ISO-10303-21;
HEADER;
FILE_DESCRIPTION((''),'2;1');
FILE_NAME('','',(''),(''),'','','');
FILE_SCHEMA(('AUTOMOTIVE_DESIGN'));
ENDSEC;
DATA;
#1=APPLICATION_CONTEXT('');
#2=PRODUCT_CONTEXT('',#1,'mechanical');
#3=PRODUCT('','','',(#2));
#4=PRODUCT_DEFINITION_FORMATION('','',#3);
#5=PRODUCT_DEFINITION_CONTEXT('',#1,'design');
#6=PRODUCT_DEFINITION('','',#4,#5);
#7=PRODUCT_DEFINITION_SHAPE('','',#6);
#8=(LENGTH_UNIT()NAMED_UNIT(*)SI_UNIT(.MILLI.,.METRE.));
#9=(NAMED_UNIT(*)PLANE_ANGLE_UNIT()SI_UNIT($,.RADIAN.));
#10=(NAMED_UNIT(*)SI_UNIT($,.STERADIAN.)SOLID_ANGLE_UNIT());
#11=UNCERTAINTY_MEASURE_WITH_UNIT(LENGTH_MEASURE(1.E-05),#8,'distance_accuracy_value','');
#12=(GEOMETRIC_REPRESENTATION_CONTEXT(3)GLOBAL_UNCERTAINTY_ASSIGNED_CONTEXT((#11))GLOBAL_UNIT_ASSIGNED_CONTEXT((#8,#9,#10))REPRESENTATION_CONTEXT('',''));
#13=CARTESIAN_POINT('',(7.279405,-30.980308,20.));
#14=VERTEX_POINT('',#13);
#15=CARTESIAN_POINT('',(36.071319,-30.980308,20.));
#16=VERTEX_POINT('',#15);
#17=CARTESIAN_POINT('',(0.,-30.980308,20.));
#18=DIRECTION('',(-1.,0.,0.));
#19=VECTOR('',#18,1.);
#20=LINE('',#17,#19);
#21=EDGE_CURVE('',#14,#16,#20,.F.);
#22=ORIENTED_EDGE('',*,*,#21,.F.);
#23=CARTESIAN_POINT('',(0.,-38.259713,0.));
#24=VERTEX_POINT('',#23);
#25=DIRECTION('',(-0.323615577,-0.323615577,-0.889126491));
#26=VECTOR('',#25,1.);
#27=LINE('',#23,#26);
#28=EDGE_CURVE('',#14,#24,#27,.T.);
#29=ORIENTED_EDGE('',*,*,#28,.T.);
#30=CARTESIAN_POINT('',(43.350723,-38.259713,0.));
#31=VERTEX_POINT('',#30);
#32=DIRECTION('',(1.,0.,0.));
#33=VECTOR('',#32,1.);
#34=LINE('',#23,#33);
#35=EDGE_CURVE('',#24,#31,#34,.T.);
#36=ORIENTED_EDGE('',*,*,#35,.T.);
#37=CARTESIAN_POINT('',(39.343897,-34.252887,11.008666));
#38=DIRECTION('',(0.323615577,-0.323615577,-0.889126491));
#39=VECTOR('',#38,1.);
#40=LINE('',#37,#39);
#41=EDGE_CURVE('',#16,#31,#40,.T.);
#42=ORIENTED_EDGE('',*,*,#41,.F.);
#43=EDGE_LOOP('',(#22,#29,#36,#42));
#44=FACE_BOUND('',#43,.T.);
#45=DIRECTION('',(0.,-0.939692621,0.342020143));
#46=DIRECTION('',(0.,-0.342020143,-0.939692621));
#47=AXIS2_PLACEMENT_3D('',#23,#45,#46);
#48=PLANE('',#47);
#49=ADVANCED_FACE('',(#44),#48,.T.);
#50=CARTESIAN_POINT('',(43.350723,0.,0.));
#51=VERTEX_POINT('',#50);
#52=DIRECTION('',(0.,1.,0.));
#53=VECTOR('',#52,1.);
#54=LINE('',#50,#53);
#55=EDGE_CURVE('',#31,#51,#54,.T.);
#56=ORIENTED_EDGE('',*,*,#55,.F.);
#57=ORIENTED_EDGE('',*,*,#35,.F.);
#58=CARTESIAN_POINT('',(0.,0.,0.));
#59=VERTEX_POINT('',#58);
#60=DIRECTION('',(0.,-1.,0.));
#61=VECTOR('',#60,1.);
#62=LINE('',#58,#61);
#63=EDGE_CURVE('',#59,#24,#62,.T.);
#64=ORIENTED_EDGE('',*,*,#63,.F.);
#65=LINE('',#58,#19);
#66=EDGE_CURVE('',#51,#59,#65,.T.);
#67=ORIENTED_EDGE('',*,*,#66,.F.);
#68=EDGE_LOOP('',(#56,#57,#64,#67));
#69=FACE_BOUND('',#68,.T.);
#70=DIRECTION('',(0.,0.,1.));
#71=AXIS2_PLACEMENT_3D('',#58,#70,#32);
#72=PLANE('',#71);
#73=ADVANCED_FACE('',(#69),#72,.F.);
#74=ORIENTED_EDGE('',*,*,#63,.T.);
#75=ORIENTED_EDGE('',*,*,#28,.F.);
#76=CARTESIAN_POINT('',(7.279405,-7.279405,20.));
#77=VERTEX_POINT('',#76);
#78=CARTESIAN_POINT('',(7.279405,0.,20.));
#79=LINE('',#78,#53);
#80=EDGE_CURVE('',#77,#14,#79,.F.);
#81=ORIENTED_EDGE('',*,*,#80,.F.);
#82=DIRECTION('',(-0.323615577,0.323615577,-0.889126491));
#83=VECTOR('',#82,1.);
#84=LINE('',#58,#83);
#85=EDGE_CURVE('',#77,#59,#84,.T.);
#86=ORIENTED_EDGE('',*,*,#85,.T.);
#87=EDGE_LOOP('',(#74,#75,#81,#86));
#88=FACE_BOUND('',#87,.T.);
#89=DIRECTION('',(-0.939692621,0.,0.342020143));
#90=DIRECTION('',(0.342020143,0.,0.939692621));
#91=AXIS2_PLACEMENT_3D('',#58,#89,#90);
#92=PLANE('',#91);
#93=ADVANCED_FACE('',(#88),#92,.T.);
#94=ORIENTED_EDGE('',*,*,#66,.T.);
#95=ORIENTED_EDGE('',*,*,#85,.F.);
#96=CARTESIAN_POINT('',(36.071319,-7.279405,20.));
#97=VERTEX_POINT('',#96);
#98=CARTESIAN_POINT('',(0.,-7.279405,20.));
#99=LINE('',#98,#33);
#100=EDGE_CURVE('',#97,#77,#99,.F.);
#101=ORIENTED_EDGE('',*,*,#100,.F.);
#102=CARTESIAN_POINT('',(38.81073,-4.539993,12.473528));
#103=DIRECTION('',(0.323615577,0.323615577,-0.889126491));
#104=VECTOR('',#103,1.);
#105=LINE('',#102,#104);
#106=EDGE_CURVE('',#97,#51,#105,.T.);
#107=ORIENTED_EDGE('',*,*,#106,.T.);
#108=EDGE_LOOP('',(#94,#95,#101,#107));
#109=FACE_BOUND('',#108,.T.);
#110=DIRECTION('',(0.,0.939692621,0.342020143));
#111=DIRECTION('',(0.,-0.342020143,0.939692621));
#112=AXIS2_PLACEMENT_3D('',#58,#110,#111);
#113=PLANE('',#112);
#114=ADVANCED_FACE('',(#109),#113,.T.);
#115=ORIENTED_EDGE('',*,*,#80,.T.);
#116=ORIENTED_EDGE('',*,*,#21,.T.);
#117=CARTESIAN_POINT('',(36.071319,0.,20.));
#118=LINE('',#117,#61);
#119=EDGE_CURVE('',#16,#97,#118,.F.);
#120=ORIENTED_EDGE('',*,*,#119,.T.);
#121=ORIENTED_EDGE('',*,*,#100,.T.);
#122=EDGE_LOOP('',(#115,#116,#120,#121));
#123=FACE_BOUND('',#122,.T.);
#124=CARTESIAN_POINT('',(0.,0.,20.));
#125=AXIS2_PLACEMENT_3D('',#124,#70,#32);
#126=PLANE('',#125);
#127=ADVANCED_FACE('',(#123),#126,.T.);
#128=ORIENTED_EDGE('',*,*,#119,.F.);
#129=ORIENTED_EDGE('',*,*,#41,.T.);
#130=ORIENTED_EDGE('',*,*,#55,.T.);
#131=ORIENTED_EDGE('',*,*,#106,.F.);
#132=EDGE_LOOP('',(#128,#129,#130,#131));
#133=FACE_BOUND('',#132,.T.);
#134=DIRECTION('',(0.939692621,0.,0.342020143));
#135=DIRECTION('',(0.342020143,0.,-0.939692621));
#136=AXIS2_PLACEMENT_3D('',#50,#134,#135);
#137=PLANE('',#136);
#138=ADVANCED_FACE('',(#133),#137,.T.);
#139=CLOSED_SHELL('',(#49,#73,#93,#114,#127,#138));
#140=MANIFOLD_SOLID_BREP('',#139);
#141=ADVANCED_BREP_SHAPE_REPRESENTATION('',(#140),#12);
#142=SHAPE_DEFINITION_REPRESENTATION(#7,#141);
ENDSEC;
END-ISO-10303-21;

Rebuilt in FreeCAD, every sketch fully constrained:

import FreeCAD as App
import Part
import Sketcher

V = App.Vector


def add_polygon(sketch, points):
    """Adds a closed chain of lines whose ends are joined by coincident constraints."""
    first, n = sketch.GeometryCount, len(points)
    for a, b in zip(points, points[1:] + points[:1]):
        sketch.addGeometry(Part.LineSegment(App.Vector(*a, 0), App.Vector(*b, 0)), False)
    for i in range(n):
        sketch.addConstraint(Sketcher.Constraint("Coincident", first + i, 2, first + (i + 1) % n, 1))

doc = App.newDocument("Part")
params = doc.addObject("Spreadsheet::Sheet", "Params")
for row, (alias, value) in enumerate([
    ("pad1_length", "20 mm"),
    ("pad1_taper", "-20 deg"),
], start=1):
    params.set(f"A{row}", alias)
    params.set(f"B{row}", "=" + value)
    params.setAlias(f"B{row}", alias)

body = doc.addObject("PartDesign::Body", "Body")

# Sketch on XY plane
sketch1 = body.newObject("Sketcher::SketchObject", "Sketch")
sketch1.AttachmentSupport = (doc.getObject("XY_Plane"), [""])
sketch1.MapMode = "FlatFace"
add_polygon(sketch1, [(0, 0), (0, -38), (43, -38), (43, 0)])  # lines 0-3
sketch1.addConstraint([
    Sketcher.Constraint("Vertical", 0),
    Sketcher.Constraint("Horizontal", 1),
    Sketcher.Constraint("Vertical", 2),
    Sketcher.Constraint("Horizontal", 3),
    Sketcher.Constraint("Coincident", 3, 2, -1, 1),
    Sketcher.Constraint("DistanceX", 1, 1, 1, 2, 43.350723),
    Sketcher.Constraint("DistanceY", 0, 2, 0, 1, 38.259713),
])
pad1 = body.newObject("PartDesign::Pad", "Pad")
pad1.Profile = sketch1
pad1.setExpression("Length", "Params.pad1_length")
pad1.setExpression("TaperAngle", "Params.pad1_taper")

doc.recompute()
